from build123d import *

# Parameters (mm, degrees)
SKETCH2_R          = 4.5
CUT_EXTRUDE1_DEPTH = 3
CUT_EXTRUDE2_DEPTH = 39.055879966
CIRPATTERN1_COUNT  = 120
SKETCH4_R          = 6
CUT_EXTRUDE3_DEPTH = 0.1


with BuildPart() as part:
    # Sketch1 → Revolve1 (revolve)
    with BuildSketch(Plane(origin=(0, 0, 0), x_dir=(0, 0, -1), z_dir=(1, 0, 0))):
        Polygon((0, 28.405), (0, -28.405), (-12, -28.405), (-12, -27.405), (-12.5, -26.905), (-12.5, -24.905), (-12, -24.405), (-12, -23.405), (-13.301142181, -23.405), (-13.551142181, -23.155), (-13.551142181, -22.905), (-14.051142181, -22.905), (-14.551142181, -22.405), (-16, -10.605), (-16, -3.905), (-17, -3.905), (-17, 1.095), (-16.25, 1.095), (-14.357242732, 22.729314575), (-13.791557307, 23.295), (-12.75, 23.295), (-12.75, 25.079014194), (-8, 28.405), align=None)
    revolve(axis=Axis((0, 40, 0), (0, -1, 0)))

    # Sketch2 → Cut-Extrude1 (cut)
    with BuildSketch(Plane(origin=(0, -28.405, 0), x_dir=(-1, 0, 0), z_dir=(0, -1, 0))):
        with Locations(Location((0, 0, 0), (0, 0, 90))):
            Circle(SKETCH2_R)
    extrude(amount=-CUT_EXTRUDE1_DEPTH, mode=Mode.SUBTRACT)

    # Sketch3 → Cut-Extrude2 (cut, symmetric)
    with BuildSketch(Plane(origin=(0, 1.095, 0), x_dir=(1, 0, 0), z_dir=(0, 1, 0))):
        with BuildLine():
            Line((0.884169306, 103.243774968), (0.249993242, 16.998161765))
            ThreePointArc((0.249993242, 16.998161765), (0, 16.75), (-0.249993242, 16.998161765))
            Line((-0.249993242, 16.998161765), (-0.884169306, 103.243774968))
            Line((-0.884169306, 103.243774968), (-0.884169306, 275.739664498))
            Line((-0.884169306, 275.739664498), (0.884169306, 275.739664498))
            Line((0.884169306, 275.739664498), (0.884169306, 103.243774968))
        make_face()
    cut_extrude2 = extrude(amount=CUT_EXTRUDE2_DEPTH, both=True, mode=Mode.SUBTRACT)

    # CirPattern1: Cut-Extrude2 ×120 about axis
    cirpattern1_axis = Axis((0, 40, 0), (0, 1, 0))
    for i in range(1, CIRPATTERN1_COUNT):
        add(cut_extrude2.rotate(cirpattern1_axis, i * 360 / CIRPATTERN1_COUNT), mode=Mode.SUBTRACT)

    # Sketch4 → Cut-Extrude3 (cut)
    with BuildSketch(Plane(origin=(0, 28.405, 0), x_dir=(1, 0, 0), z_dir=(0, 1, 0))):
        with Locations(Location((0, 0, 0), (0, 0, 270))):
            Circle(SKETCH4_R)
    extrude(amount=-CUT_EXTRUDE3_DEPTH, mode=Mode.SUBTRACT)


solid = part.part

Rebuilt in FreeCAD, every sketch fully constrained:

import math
import FreeCAD as App
import Part
import Sketcher
from FreeCAD import Vector
Q = App.Units.Quantity


def add_polygon(sketch, points):
    """Adds a closed chain of lines whose ends are joined by coincident constraints."""
    first, n = sketch.GeometryCount, len(points)
    for a, b in zip(points, points[1:] + points[:1]):
        sketch.addGeometry(Part.LineSegment(App.Vector(*a, 0), App.Vector(*b, 0)), False)
    for i in range(n):
        sketch.addConstraint(Sketcher.Constraint("Coincident", first + i, 2, first + (i + 1) % n, 1))

doc = App.newDocument("Part")
body = doc.addObject("PartDesign::Body", "Body")

# Sketch on YZ plane
sketch1 = doc.addObject("Sketcher::SketchObject", "Sketch")
body.addObject(sketch1)
sketch1.AttachmentSupport = (doc.YZ_Plane, [""])
sketch1.MapMode = "FlatFace"
add_polygon(sketch1, [(-28.41, 0), (28.41, 0), (28.41, 8), (25.08, 12.75), (23.3, 12.75), (23.3, 13.79), (22.73, 14.36), (1.09, 16.25), (1.09, 17), (-3.9, 17), (-3.9, 16), (-10.61, 16), (-22.41, 14.55), (-22.91, 14.05), (-22.91, 13.55), (-23.16, 13.55), (-23.41, 13.3), (-23.41, 12), (-24.41, 12), (-24.91, 12.5), (-26.91, 12.5), (-27.41, 12), (-28.41, 12)])  # lines 0-22
sketch1.addConstraint(Sketcher.Constraint("Horizontal", 0))
sketch1.addConstraint(Sketcher.Constraint("Vertical", 1))
sketch1.addConstraint(Sketcher.Constraint("Horizontal", 3))
sketch1.addConstraint(Sketcher.Constraint("Vertical", 4))
sketch1.addConstraint(Sketcher.Constraint("Vertical", 7))
sketch1.addConstraint(Sketcher.Constraint("Horizontal", 8))
sketch1.addConstraint(Sketcher.Constraint("Vertical", 9))
sketch1.addConstraint(Sketcher.Constraint("Horizontal", 10))
sketch1.addConstraint(Sketcher.Constraint("Vertical", 13))
sketch1.addConstraint(Sketcher.Constraint("Horizontal", 14))
sketch1.addConstraint(Sketcher.Constraint("Vertical", 16))
sketch1.addConstraint(Sketcher.Constraint("Horizontal", 17))
sketch1.addConstraint(Sketcher.Constraint("Horizontal", 19))
sketch1.addConstraint(Sketcher.Constraint("Horizontal", 21))
sketch1.addConstraint(Sketcher.Constraint("Vertical", 22))
sketch1.addConstraint(Sketcher.Constraint("Symmetric", 0, 2, 22, 2, -1, 1))
sketch1.addConstraint(Sketcher.Constraint("Perpendicular", 5, 12))
sketch1.addConstraint(Sketcher.Constraint("Parallel", 12, 15))
sketch1.addConstraint(Sketcher.Constraint("Perpendicular", 15, 18))
sketch1.addConstraint(Sketcher.Constraint("Perpendicular", 18, 20))
sketch1.addConstraint(Sketcher.Constraint("Horizontal", 17, 2, 20, 2))
sketch1.addConstraint(Sketcher.Constraint("Equal", 17, 21))
sketch1.addConstraint(Sketcher.Constraint("Equal", 21, 9))
sketch1.addConstraint(Sketcher.Constraint("Equal", 12, 18))
sketch1.addConstraint(Sketcher.Constraint("Equal", 18, 20))
sketch1.addConstraint(Sketcher.Constraint("DistanceX", 8, 2, 8, 1, Q("5 mm")))
sketch1.addConstraint(Sketcher.Constraint("DistanceX", 17, 2, 17, 1, Q("1 mm")))
sketch1.addConstraint(Sketcher.Constraint("DistanceX", 19, 2, 19, 1, Q("2 mm")))
sketch1.addConstraint(Sketcher.Constraint("DistanceY", 1, 1, 1, 2, Q("8 mm")))
sketch1.addConstraint(Sketcher.Constraint("DistanceY", 22, 2, 22, 1, Q("12 mm")))
sketch1.addConstraint(Sketcher.Constraint("Angle", 2, Q("125 deg")))
sketch1.addConstraint(Sketcher.Constraint("Angle", 6, Q("175 deg")))
sketch1.addConstraint(Sketcher.Constraint("Angle", 11, Q("-173 deg")))
sketch1.addConstraint(Sketcher.Constraint("DistanceX", 10, 2, 10, 1, Q("6.7 mm")))
sketch1.addConstraint(Sketcher.Constraint("DistanceY", 13, 2, 13, 1, Q("0.5 mm")))
sketch1.addConstraint(Sketcher.Constraint("DistanceY", -1, 1, 7, 2, Q("17 mm")))
sketch1.addConstraint(Sketcher.Constraint("DistanceX", 12, 2, 9, 2, Q("19 mm")))
sketch1.addConstraint(Sketcher.Constraint("DistanceY", 13, 2, 11, 2, Q("1 mm")))
sketch1.addConstraint(Sketcher.Constraint("DistanceX", 15, 2, 11, 2, Q("1 mm")))
sketch1.addConstraint(Sketcher.Constraint("Distance", 5, Q("0.8 mm")))
sketch1.addConstraint(Sketcher.Constraint("DistanceX", 0, 1, 0, 2, Q("56.81 mm")))
sketch1.addConstraint(Sketcher.Constraint("DistanceX", 14, 2, 14, 1, Q("0.25 mm")))
sketch1.addConstraint(Sketcher.Constraint("DistanceY", 7, 1, 7, 2, Q("0.75 mm")))
sketch1.addConstraint(Sketcher.Constraint("DistanceX", 6, 2, 4, 2, Q("22.2 mm")))
sketch1.addConstraint(Sketcher.Constraint("DistanceY", 3, 2, 6, 2, Q("3.5 mm")))
revolution = doc.addObject("PartDesign::Revolution", "Revolution")
body.addObject(revolution)
revolution.Profile = sketch1
revolution.ReferenceAxis = (sketch1, ["H_Axis"])
revolution.Angle = 360

# Sketch on XZ plane
sketch2 = doc.addObject("Sketcher::SketchObject", "Sketch001")
body.addObject(sketch2)
sketch2.AttachmentSupport = (doc.XZ_Plane, [""])
sketch2.MapMode = "FlatFace"
sketch2.AttachmentOffset = App.Placement(Vector(0, 0, 28.405), App.Rotation())
sketch2.addGeometry(Part.Circle(Vector(0, 0, 0), Vector(0, 0, 1), 4.5), False)
sketch2.addConstraint(Sketcher.Constraint("Coincident", 0, 3, -1, 1))
sketch2.addConstraint(Sketcher.Constraint("Diameter", 0, Q("9 mm")))
pocket1 = doc.addObject("PartDesign::Pocket", "Pocket")
body.addObject(pocket1)
pocket1.Profile = sketch2
pocket1.Length = 3

# Sketch on XZ plane
sketch3 = doc.addObject("Sketcher::SketchObject", "Sketch002")
body.addObject(sketch3)
sketch3.AttachmentSupport = (doc.XZ_Plane, [""])
sketch3.MapMode = "FlatFace"
sketch3.AttachmentOffset = App.Placement(Vector(0, 0, -1.095), App.Rotation())
sketch3.addGeometry(Part.LineSegment(Vector(0.25, -17, 0), Vector(0.88, -103.24, 0)), False)
sketch3.addGeometry(Part.LineSegment(Vector(0.88, -103.24, 0), Vector(0.88, -275.74, 0)), False)
sketch3.addGeometry(Part.LineSegment(Vector(0.88, -275.74, 0), Vector(-0.88, -275.74, 0)), False)
sketch3.addGeometry(Part.LineSegment(Vector(-0.88, -275.74, 0), Vector(-0.88, -103.24, 0)), False)
sketch3.addGeometry(Part.LineSegment(Vector(-0.88, -103.24, 0), Vector(-0.25, -17, 0)), False)
sketch3.addGeometry(Part.ArcOfCircle(Part.Circle(Vector(0, -17, 0), Vector(0, 0, 1), 0.25), math.radians(0), math.radians(180)), False)
sketch3.addConstraint(Sketcher.Constraint("Coincident", 0, 2, 1, 1))
sketch3.addConstraint(Sketcher.Constraint("Coincident", 1, 2, 2, 1))
sketch3.addConstraint(Sketcher.Constraint("Coincident", 2, 2, 3, 1))
sketch3.addConstraint(Sketcher.Constraint("Coincident", 3, 2, 4, 1))
sketch3.addConstraint(Sketcher.Constraint("Tangent", 4, 2, 5, 2))
sketch3.addConstraint(Sketcher.Constraint("Tangent", 5, 1, 0, 1))
sketch3.addConstraint(Sketcher.Constraint("Vertical", 1))
sketch3.addConstraint(Sketcher.Constraint("Horizontal", 2))
sketch3.addConstraint(Sketcher.Constraint("Vertical", 3))
sketch3.addConstraint(Sketcher.Constraint("Symmetric", 0, 2, 3, 2, -2))
sketch3.addConstraint(Sketcher.Constraint("PointOnObject", 5, 3, -2))
sketch3.addConstraint(Sketcher.Constraint("Radius", 5, Q("0.25 mm")))
sketch3.addConstraint(Sketcher.Constraint("DistanceY", 5, 3, -1, 1, Q("17 mm")))
sketch3.addConstraint(Sketcher.Constraint("DistanceX", 2, 2, 2, 1, Q("1.768339 mm")))
sketch3.addConstraint(Sketcher.Constraint("DistanceY", 1, 2, 1, 1, Q("172.49589 mm")))
sketch3.addConstraint(Sketcher.Constraint("Distance", 0, Q("86.247945 mm")))
pocket2 = doc.addObject("PartDesign::Pocket", "Pocket001")
body.addObject(pocket2)
pocket2.Profile = sketch3
pocket2.Length = 78.11176
pocket2.Midplane = True
doc.recompute()

polarpattern = doc.addObject("PartDesign::PolarPattern", "PolarPattern")
body.addObject(polarpattern)
polarpattern.Originals = [pocket2]
polarpattern.Axis = (doc.Y_Axis, [""])
polarpattern.Angle = 360
polarpattern.Occurrences = 120
body.Tip = polarpattern

# Sketch on XZ plane
sketch4 = doc.addObject("Sketcher::SketchObject", "Sketch003")
body.addObject(sketch4)
sketch4.AttachmentSupport = (doc.XZ_Plane, [""])
sketch4.MapMode = "FlatFace"
sketch4.AttachmentOffset = App.Placement(Vector(0, 0, -28.405), App.Rotation())
sketch4.addGeometry(Part.Circle(Vector(0, 0, 0), Vector(0, 0, 1), 6), False)
sketch4.addConstraint(Sketcher.Constraint("Coincident", 0, 3, -1, 1))
sketch4.addConstraint(Sketcher.Constraint("Diameter", 0, Q("12 mm")))
pocket3 = doc.addObject("PartDesign::Pocket", "Pocket002")
body.addObject(pocket3)
pocket3.Profile = sketch4
pocket3.Length = 0.1
pocket3.Reversed = True

doc.recompute()
